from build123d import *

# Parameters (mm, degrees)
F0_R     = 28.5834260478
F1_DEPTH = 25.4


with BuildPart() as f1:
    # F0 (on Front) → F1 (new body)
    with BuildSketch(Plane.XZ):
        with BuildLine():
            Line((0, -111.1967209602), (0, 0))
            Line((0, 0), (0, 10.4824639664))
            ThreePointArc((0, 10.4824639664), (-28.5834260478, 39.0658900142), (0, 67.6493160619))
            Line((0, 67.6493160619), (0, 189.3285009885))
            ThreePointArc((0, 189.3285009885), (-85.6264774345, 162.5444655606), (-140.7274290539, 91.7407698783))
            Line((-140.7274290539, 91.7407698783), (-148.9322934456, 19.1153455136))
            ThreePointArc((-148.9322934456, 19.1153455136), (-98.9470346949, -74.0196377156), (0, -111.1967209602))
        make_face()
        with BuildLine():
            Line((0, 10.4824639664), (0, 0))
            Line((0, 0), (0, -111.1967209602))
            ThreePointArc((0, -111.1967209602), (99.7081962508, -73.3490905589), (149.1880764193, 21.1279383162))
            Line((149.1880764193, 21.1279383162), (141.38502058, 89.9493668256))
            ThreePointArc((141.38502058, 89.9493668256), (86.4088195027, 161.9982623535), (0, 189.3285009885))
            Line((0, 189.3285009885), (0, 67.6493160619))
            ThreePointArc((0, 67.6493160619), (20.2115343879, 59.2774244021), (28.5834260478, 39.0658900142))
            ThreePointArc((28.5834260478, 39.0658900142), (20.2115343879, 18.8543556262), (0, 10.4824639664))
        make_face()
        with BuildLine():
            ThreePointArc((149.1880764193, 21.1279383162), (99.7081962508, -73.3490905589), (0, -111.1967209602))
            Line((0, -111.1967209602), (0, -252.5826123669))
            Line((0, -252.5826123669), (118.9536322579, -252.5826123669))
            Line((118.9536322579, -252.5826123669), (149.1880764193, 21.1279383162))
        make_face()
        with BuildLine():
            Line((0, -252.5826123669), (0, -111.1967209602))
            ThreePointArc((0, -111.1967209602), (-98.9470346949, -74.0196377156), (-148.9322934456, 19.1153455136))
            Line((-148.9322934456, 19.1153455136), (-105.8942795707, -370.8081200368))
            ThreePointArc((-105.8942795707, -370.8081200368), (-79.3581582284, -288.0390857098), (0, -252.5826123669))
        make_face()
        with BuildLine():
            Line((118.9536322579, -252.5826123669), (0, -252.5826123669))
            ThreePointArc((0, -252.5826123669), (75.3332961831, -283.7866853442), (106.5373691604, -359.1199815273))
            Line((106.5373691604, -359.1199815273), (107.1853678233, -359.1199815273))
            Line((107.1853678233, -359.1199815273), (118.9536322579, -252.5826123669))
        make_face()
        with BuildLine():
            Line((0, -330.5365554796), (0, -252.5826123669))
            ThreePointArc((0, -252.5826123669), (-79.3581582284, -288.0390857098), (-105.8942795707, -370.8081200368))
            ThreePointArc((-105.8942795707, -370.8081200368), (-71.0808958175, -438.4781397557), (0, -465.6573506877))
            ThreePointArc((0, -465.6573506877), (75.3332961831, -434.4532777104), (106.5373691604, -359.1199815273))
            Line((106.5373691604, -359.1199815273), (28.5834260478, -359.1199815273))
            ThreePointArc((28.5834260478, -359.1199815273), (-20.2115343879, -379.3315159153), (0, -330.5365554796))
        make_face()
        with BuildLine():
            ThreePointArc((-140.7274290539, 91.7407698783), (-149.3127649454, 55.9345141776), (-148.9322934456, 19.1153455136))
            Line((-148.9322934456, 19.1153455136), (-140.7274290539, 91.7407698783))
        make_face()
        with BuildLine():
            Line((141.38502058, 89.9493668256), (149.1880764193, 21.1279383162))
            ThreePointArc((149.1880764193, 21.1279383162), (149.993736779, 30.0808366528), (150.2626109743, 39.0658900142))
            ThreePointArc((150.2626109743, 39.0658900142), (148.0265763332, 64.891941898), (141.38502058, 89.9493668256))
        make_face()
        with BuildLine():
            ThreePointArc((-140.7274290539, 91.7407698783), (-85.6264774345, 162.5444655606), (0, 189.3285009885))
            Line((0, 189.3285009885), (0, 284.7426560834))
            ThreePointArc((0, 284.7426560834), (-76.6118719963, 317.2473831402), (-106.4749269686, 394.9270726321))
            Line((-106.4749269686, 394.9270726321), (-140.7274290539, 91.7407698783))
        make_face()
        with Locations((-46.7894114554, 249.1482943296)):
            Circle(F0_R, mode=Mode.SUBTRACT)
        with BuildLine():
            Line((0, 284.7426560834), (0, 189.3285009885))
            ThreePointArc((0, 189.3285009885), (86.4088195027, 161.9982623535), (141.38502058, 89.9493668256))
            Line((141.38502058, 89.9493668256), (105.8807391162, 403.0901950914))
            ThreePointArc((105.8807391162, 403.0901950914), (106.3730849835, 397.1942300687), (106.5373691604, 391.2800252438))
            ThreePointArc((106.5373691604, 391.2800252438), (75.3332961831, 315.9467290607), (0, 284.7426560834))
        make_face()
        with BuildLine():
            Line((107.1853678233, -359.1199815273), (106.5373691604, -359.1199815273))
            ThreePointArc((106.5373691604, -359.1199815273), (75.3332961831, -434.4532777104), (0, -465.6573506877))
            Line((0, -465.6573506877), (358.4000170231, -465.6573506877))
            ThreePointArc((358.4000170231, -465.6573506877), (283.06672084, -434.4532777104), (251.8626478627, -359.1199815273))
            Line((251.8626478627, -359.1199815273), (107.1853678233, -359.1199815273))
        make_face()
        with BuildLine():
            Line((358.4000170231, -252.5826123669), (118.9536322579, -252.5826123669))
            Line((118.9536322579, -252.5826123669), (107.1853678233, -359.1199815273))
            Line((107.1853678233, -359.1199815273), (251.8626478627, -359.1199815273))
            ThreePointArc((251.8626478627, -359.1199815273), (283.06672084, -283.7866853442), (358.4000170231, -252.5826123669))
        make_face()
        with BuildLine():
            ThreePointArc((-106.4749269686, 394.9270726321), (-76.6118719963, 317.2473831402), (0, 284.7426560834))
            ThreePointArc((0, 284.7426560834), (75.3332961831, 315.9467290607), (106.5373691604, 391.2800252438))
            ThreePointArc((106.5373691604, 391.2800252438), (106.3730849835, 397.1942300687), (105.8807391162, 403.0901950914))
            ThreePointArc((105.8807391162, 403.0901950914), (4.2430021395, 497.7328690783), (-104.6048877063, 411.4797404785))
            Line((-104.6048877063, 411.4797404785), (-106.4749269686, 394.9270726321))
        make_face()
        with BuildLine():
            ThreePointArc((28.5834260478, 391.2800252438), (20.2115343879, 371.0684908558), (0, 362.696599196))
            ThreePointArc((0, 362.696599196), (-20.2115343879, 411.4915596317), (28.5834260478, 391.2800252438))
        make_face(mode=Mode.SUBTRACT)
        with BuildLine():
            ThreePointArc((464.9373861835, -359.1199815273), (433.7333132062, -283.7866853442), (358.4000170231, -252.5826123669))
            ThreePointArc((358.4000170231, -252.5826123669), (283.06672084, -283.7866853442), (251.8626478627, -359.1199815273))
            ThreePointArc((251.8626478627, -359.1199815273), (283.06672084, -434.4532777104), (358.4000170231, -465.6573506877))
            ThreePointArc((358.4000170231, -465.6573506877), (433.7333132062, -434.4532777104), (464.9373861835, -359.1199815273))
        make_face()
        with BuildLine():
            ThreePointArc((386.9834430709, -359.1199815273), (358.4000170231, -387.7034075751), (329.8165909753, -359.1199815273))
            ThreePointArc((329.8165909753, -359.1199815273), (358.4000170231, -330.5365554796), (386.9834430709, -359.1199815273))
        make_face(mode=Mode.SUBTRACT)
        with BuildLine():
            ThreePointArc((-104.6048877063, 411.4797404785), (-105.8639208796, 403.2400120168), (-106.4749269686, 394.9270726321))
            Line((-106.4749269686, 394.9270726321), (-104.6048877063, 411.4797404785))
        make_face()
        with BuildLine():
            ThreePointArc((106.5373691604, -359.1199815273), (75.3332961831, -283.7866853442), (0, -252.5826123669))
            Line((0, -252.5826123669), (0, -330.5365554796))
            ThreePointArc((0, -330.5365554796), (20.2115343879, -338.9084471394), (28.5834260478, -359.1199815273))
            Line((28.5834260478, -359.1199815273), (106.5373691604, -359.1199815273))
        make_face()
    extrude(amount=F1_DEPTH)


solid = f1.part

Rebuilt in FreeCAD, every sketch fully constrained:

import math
import FreeCAD as App
import Part
import Sketcher

V = App.Vector
Q = App.Units.Quantity

doc = App.newDocument("Part")
body = doc.addObject("PartDesign::Body", "Body")

# Sketch on XZ plane
sketch1 = body.newObject("Sketcher::SketchObject", "Sketch")
sketch1.AttachmentSupport = (doc.getObject("XZ_Plane"), [""])
sketch1.MapMode = "FlatFace"
sketch1.addGeometry([
    Part.ArcOfCircle(Part.Circle(V(0, -359.119982, 0), V(0, 0, 1), 106.537369), math.radians(-173.701443), math.radians(-90)),  # 0
    Part.LineSegment(V(0, -465.657351, 0), V(358.400017, -465.657351, 0)),  # 1
    Part.ArcOfCircle(Part.Circle(V(358.400017, -359.119982, 0), V(0, 0, 1), 106.537369), math.radians(-90), math.radians(90)),  # 2
    Part.LineSegment(V(358.400017, -252.582612, 0), V(118.953632, -252.582612, 0)),  # 3
    Part.LineSegment(V(118.953632, -252.582612, 0), V(149.188076, 21.127938, 0)),  # 4
    Part.ArcOfCircle(Part.Circle(V(0, 39.06589, 0), V(0, 0, 1), 150.262611), math.radians(-6.856169), math.radians(0)),  # 5
    Part.ArcOfCircle(Part.Circle(V(0, 39.06589, 0), V(0, 0, 1), 150.262611), math.radians(0), math.radians(19.793448)),  # 6
    Part.LineSegment(V(141.385021, 89.949367, 0), V(105.880739, 403.090195, 0)),  # 7
    Part.ArcOfCircle(Part.Circle(V(0, 391.280025, 0), V(0, 0, 1), 106.537369), math.radians(6.364589), math.radians(169.070432)),  # 8
    Part.ArcOfCircle(Part.Circle(V(0, 391.280025, 0), V(0, 0, 1), 106.537369), math.radians(169.070432), math.radians(178.038235)),  # 9
    Part.LineSegment(V(-106.474927, 394.927073, 0), V(-140.727429, 91.74077, 0)),  # 10
    Part.ArcOfCircle(Part.Circle(V(0, 39.06589, 0), V(0, 0, 1), 150.262611), math.radians(159.47891), math.radians(187.629758)),  # 11
    Part.LineSegment(V(-148.932293, 19.115346, 0), V(-105.89428, -370.80812, 0)),  # 12
    Part.Circle(V(0, -359.119982, 0), V(0, 0, 1), 28.583426),  # 13
    Part.ArcOfCircle(Part.Circle(V(358.400017, -359.119982, 0), V(0, 0, 1), 28.583426), math.radians(0), math.radians(180)),  # 14
    Part.ArcOfCircle(Part.Circle(V(358.400017, -359.119982, 0), V(0, 0, 1), 28.583426), math.radians(180), math.radians(360)),  # 15
    Part.ArcOfCircle(Part.Circle(V(0, 39.06589, 0), V(0, 0, 1), 28.583426), math.radians(90), math.radians(270)),  # 16
    Part.ArcOfCircle(Part.Circle(V(0, 39.06589, 0), V(0, 0, 1), 28.583426), math.radians(0), math.radians(90)),  # 17
    Part.ArcOfCircle(Part.Circle(V(0, 39.06589, 0), V(0, 0, 1), 28.583426), math.radians(-90), math.radians(0)),  # 18
    Part.Circle(V(-46.789411, 249.148294, 0), V(0, 0, 1), 28.583426),  # 19
    Part.Circle(V(0, 391.280025, 0), V(0, 0, 1), 28.583426),  # 20
], False)
sketch1.addConstraint([
    Sketcher.Constraint("Coincident", 0, 2, 1, 1),
    Sketcher.Constraint("Coincident", 1, 2, 2, 1),
    Sketcher.Constraint("Coincident", 2, 2, 3, 1),
    Sketcher.Constraint("Coincident", 3, 2, 4, 1),
    Sketcher.Constraint("Coincident", 4, 2, 5, 1),
    Sketcher.Constraint("Coincident", 5, 2, 6, 1),
    Sketcher.Constraint("Coincident", 6, 2, 7, 1),
    Sketcher.Constraint("Coincident", 7, 2, 8, 1),
    Sketcher.Constraint("Coincident", 8, 2, 9, 1),
    Sketcher.Constraint("Coincident", 9, 2, 10, 1),
    Sketcher.Constraint("Coincident", 10, 2, 11, 1),
    Sketcher.Constraint("Coincident", 11, 2, 12, 1),
    Sketcher.Constraint("Coincident", 12, 2, 0, 1),
    Sketcher.Constraint("Coincident", 14, 1, 15, 2),
    Sketcher.Constraint("Coincident", 15, 1, 14, 2),
    Sketcher.Constraint("Coincident", 16, 1, 17, 2),
    Sketcher.Constraint("Coincident", 17, 1, 18, 2),
    Sketcher.Constraint("Coincident", 18, 1, 16, 2),
    Sketcher.Constraint("Horizontal", 1),
    Sketcher.Constraint("Horizontal", 3),
    Sketcher.Constraint("Coincident", 6, 3, 5, 3),
    Sketcher.Constraint("Coincident", 9, 3, 8, 3),
    Sketcher.Constraint("Coincident", 11, 3, 5, 3),
    Sketcher.Constraint("Coincident", 13, 3, 0, 3),
    Sketcher.Constraint("Coincident", 14, 3, 2, 3),
    Sketcher.Constraint("Coincident", 16, 3, 5, 3),
    Sketcher.Constraint("Coincident", 17, 3, 5, 3),
    Sketcher.Constraint("Coincident", 20, 3, 8, 3),
    Sketcher.Constraint("PointOnObject", 0, 3, -2),
    Sketcher.Constraint("PointOnObject", 5, 3, -2),
    Sketcher.Constraint("PointOnObject", 8, 3, -2),
    Sketcher.Constraint("PointOnObject", 18, 3, -2),
    Sketcher.Constraint("PointOnObject", 0, 2, -2),
    Sketcher.Constraint("PointOnObject", 16, 1, -2),
    Sketcher.Constraint("PointOnObject", 18, 1, -2),
    Sketcher.Constraint("Radius", 0, Q("106.537369 mm")),
    Sketcher.Constraint("Radius", 2, Q("106.537369 mm")),
    Sketcher.Constraint("Radius", 5, Q("150.262611 mm")),
    Sketcher.Constraint("Radius", 8, Q("106.537369 mm")),
    Sketcher.Constraint("Radius", 11, Q("150.262611 mm")),
    Sketcher.Constraint("Diameter", 13, Q("57.166852 mm")),
    Sketcher.Constraint("Diameter", 19, Q("57.166852 mm")),
    Sketcher.Constraint("Diameter", 20, Q("57.166852 mm")),
    Sketcher.Constraint("Radius", 14, Q("28.583426 mm")),
    Sketcher.Constraint("Radius", 16, Q("28.583426 mm")),
    Sketcher.Constraint("DistanceX", 8, 2, 19, 3, Q("2.2761999 in")),
    Sketcher.Constraint("DistanceY", 19, 3, 7, 2, Q("153.941901 mm")),
    Sketcher.Constraint("Distance", 7, Q("315.14716 mm")),
    Sketcher.Constraint("DistanceX", 1, 1, 1, 2, Q("358.400017 mm")),
    Sketcher.Constraint("DistanceX", 3, 2, 3, 1, Q("239.446385 mm")),
    Sketcher.Constraint("DistanceY", 0, 3, -1, 1, Q("359.119982 mm")),
    Sketcher.Constraint("DistanceY", -1, 1, 5, 3, Q("39.06589 mm")),
    Sketcher.Constraint("DistanceY", 15, 3, -1, 1, Q("359.119982 mm")),
    Sketcher.Constraint("DistanceX", 19, 3, -1, 1, Q("46.789411 mm")),
    Sketcher.Constraint("DistanceY", -1, 1, 4, 2, Q("21.127938 mm")),
    Sketcher.Constraint("DistanceY", -1, 1, 5, 2, Q("39.06589 mm")),
    Sketcher.Constraint("DistanceX", -1, 1, 6, 2, Q("141.385021 mm")),
    Sketcher.Constraint("DistanceX", -1, 1, 7, 2, Q("105.880739 mm")),
    Sketcher.Constraint("DistanceX", 10, 2, -1, 1, Q("140.727429 mm")),
    Sketcher.Constraint("DistanceX", 12, 2, -1, 1, Q("105.89428 mm")),
    Sketcher.Constraint("DistanceY", 14, 1, -1, 1, Q("359.119982 mm")),
    Sketcher.Constraint("DistanceX", -1, 1, 15, 1, Q("329.816591 mm")),
    Sketcher.Constraint("DistanceY", 15, 1, -1, 1, Q("359.119982 mm")),
    Sketcher.Constraint("DistanceY", -1, 1, 17, 1, Q("39.06589 mm")),
    Sketcher.Constraint("DistanceY", 19, 3, 9, 2, Q("145.778778 mm")),
    Sketcher.Constraint("DistanceX", 12, 2, 3, 2, Q("224.847912 mm")),
    Sketcher.Constraint("Distance", 12, Q("392.291447 mm")),
])
pad1 = body.newObject("PartDesign::Pad", "Pad")
pad1.Profile = sketch1
pad1.Length = Q("1 in")

doc.recompute()
